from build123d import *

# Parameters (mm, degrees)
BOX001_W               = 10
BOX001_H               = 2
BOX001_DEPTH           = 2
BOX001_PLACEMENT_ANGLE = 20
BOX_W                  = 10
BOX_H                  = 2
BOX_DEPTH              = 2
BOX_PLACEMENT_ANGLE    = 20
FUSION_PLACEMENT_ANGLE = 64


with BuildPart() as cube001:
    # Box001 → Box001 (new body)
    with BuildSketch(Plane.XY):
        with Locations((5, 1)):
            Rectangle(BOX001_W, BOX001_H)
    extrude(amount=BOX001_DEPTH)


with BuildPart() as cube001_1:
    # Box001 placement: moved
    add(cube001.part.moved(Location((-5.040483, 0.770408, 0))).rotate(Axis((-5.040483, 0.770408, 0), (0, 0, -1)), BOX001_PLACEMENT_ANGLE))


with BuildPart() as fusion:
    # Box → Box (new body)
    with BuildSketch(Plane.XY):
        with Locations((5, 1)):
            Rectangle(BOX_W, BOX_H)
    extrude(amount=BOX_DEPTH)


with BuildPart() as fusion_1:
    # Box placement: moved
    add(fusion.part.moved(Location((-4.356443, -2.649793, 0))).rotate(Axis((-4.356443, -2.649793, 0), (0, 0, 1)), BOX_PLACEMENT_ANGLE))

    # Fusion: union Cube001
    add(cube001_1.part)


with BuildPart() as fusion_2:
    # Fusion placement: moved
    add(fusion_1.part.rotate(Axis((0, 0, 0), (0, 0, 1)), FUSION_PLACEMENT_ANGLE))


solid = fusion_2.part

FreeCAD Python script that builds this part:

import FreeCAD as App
import Part
import Sketcher
from FreeCAD import Vector
Q = App.Units.Quantity


def add_polygon(sketch, points):
    """Adds a closed chain of lines whose ends are joined by coincident constraints."""
    first, n = sketch.GeometryCount, len(points)
    for a, b in zip(points, points[1:] + points[:1]):
        sketch.addGeometry(Part.LineSegment(App.Vector(*a, 0), App.Vector(*b, 0)), False)
    for i in range(n):
        sketch.addConstraint(Sketcher.Constraint("Coincident", first + i, 2, first + (i + 1) % n, 1))

doc = App.newDocument("Part")
params = doc.addObject("Spreadsheet::Sheet", "Params")
for row, (alias, value) in enumerate([
    ("sketch1_width", "10 mm"),
    ("sketch1_height", "2 mm"),
    ("pad1_length", "2 mm"),
    ("sketch2_width", "10 mm"),
    ("sketch2_height", "2 mm"),
    ("pad2_length", "2 mm"),
], start=1):
    params.set(f"A{row}", alias)
    params.set(f"B{row}", "=" + value)
    params.setAlias(f"B{row}", alias)

body = doc.addObject("PartDesign::Body", "Body")

sketch1 = body.newObject("Sketcher::SketchObject", "Sketch")
sketch1.AttachmentSupport = (doc.getObject("XY_Plane"), [""])
sketch1.MapMode = "FlatFace"
add_polygon(sketch1, [(0, 2), (0, 0), (10, 0), (10, 2)])
sketch1.addConstraint([
    Sketcher.Constraint("Vertical", 0),
    Sketcher.Constraint("Horizontal", 1),
    Sketcher.Constraint("Vertical", 2),
    Sketcher.Constraint("Horizontal", 3),
    Sketcher.Constraint("Coincident", 0, 2, -1, 1),
    Sketcher.Constraint("DistanceX", 1, 1, 1, 2, Q("10 mm")),
    Sketcher.Constraint("DistanceY", 0, 2, 0, 1, Q("2 mm")),
])
sketch1.setExpression("Constraints[9]", "Params.sketch1_width")
sketch1.setExpression("Constraints[10]", "Params.sketch1_height")
pad1 = body.newObject("PartDesign::Pad", "Pad")
pad1.Profile = sketch1
pad1.setExpression("Length", "Params.pad1_length")
body2 = doc.addObject("PartDesign::Body", "Body001")
doc.recompute()

body.Placement = App.Placement(Vector(-5.040483, 0.770408, 0), App.Rotation(Vector(0, 0, -1), 20))
boolean = body2.newObject("PartDesign::Boolean", "Boolean")
boolean.Type = "Fuse"
boolean.addObjects([body])
body3 = doc.addObject("PartDesign::Body", "Body002")

sketch2 = body3.newObject("Sketcher::SketchObject", "Sketch001")
sketch2.AttachmentSupport = (doc.getObject("XY_Plane002"), [""])
sketch2.MapMode = "FlatFace"
add_polygon(sketch2, [(0, 2), (0, 0), (10, 0), (10, 2)])
sketch2.addConstraint([
    Sketcher.Constraint("Vertical", 0),
    Sketcher.Constraint("Horizontal", 1),
    Sketcher.Constraint("Vertical", 2),
    Sketcher.Constraint("Horizontal", 3),
    Sketcher.Constraint("Coincident", 0, 2, -1, 1),
    Sketcher.Constraint("DistanceX", 1, 1, 1, 2, Q("10 mm")),
    Sketcher.Constraint("DistanceY", 0, 2, 0, 1, Q("2 mm")),
])
sketch2.setExpression("Constraints[9]", "Params.sketch2_width")
sketch2.setExpression("Constraints[10]", "Params.sketch2_height")
pad2 = body3.newObject("PartDesign::Pad", "Pad001")
pad2.Profile = sketch2
pad2.setExpression("Length", "Params.pad2_length")
body4 = doc.addObject("PartDesign::Body", "Body003")
doc.recompute()

body3.Placement = App.Placement(Vector(-4.356443, -2.649793, 0), App.Rotation(Vector(0, 0, 1), 20))
boolean2 = body4.newObject("PartDesign::Boolean", "Boolean001")
boolean2.Type = "Fuse"
boolean2.addObjects([body3])
doc.recompute()

boolean3 = body4.newObject("PartDesign::Boolean", "Boolean002")
boolean3.Type = "Fuse"
boolean3.addObjects([body2])
body5 = doc.addObject("PartDesign::Body", "Body004")
doc.recompute()

body4.Placement = App.Placement(Vector(0, 0, 0), App.Rotation(Vector(0, 0, 1), 64))
boolean4 = body5.newObject("PartDesign::Boolean", "Boolean003")
boolean4.Type = "Fuse"
boolean4.addObjects([body4])

doc.recompute()
